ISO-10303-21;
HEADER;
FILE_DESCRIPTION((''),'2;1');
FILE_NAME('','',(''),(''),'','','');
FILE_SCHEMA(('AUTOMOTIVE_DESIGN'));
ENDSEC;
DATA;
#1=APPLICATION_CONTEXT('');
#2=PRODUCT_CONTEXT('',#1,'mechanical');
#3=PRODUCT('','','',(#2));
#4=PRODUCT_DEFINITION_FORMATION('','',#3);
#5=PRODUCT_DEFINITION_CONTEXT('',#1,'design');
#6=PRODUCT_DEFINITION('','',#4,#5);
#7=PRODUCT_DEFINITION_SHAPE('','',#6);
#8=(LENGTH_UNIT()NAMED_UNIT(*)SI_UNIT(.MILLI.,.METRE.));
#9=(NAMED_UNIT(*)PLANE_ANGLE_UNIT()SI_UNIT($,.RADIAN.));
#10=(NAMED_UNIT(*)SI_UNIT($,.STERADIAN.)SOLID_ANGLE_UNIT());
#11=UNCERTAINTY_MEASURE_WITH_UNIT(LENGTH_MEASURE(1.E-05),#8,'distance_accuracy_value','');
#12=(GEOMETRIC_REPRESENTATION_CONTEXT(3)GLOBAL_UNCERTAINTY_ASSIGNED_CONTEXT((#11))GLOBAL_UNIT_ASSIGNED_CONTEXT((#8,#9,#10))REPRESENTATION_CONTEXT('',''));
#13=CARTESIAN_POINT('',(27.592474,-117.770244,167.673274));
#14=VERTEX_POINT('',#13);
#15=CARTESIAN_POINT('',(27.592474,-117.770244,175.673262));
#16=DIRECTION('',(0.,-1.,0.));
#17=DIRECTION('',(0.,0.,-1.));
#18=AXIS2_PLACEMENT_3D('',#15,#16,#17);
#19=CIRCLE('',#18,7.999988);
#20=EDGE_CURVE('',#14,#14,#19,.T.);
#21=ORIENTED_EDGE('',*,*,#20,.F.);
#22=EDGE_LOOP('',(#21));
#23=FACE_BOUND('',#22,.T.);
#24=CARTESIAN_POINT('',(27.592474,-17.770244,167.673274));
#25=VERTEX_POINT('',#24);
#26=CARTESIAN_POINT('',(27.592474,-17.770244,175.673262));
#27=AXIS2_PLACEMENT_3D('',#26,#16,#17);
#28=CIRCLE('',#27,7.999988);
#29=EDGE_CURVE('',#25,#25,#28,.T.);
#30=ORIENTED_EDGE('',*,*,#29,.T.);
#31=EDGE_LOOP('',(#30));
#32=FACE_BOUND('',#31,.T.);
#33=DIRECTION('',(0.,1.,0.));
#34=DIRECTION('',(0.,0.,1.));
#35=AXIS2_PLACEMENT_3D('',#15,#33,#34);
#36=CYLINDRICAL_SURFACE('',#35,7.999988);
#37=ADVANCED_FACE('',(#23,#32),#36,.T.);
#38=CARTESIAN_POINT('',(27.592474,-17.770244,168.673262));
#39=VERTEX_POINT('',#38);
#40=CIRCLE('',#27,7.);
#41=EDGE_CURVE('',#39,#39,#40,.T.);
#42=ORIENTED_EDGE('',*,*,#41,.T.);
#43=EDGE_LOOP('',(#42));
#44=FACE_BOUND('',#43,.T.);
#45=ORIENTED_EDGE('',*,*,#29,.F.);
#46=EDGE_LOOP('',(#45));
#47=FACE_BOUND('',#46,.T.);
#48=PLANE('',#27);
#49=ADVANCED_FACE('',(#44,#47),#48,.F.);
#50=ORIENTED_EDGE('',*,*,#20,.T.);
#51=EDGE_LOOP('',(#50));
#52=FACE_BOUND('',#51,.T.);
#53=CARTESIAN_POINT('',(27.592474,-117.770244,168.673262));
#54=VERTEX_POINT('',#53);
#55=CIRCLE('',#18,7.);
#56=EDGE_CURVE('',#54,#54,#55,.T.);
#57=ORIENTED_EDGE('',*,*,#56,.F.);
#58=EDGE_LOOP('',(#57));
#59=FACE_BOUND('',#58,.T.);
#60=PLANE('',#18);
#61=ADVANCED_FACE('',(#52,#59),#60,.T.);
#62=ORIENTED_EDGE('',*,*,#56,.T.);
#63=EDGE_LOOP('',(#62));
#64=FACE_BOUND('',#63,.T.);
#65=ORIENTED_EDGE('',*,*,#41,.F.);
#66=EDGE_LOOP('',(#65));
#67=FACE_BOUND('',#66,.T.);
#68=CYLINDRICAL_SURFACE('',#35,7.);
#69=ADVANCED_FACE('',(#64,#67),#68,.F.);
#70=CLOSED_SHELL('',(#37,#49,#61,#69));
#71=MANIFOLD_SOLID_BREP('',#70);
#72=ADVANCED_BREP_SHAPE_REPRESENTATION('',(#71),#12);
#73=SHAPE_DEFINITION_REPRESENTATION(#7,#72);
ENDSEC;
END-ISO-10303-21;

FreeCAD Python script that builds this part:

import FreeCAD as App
import Part
import Sketcher
from FreeCAD import Vector

doc = App.newDocument("Part")
body = doc.addObject("PartDesign::Body", "Body")

sketch1 = body.newObject("Sketcher::SketchObject", "Sketch")
sketch1.AttachmentSupport = (doc.getObject("XZ_Plane"), [""])
sketch1.MapMode = "FlatFace"
sketch1.AttachmentOffset = App.Placement(Vector(0, 0, 17.770244), App.Rotation())
sketch1.addGeometry(Part.Circle(Vector(28, 176, 0), Vector(0, 0, 1), 8), False)
sketch1.addGeometry(Part.Circle(Vector(28, 176, 0), Vector(0, 0, 1), 7), False)
sketch1.addConstraint(Sketcher.Constraint("Coincident", 1, 3, 0, 3))
sketch1.addConstraint(Sketcher.Constraint("Diameter", 1, 14.0))
sketch1.addConstraint(Sketcher.Constraint("Diameter", 0, 15.999977))
sketch1.addConstraint(Sketcher.Constraint("DistanceX", -1, 1, 0, 3, 27.592474))
sketch1.addConstraint(Sketcher.Constraint("DistanceY", -1, 1, 0, 3, 175.673262))
pad1 = body.newObject("PartDesign::Pad", "Pad")
pad1.Profile = sketch1
pad1.Length = 100

doc.recompute()
